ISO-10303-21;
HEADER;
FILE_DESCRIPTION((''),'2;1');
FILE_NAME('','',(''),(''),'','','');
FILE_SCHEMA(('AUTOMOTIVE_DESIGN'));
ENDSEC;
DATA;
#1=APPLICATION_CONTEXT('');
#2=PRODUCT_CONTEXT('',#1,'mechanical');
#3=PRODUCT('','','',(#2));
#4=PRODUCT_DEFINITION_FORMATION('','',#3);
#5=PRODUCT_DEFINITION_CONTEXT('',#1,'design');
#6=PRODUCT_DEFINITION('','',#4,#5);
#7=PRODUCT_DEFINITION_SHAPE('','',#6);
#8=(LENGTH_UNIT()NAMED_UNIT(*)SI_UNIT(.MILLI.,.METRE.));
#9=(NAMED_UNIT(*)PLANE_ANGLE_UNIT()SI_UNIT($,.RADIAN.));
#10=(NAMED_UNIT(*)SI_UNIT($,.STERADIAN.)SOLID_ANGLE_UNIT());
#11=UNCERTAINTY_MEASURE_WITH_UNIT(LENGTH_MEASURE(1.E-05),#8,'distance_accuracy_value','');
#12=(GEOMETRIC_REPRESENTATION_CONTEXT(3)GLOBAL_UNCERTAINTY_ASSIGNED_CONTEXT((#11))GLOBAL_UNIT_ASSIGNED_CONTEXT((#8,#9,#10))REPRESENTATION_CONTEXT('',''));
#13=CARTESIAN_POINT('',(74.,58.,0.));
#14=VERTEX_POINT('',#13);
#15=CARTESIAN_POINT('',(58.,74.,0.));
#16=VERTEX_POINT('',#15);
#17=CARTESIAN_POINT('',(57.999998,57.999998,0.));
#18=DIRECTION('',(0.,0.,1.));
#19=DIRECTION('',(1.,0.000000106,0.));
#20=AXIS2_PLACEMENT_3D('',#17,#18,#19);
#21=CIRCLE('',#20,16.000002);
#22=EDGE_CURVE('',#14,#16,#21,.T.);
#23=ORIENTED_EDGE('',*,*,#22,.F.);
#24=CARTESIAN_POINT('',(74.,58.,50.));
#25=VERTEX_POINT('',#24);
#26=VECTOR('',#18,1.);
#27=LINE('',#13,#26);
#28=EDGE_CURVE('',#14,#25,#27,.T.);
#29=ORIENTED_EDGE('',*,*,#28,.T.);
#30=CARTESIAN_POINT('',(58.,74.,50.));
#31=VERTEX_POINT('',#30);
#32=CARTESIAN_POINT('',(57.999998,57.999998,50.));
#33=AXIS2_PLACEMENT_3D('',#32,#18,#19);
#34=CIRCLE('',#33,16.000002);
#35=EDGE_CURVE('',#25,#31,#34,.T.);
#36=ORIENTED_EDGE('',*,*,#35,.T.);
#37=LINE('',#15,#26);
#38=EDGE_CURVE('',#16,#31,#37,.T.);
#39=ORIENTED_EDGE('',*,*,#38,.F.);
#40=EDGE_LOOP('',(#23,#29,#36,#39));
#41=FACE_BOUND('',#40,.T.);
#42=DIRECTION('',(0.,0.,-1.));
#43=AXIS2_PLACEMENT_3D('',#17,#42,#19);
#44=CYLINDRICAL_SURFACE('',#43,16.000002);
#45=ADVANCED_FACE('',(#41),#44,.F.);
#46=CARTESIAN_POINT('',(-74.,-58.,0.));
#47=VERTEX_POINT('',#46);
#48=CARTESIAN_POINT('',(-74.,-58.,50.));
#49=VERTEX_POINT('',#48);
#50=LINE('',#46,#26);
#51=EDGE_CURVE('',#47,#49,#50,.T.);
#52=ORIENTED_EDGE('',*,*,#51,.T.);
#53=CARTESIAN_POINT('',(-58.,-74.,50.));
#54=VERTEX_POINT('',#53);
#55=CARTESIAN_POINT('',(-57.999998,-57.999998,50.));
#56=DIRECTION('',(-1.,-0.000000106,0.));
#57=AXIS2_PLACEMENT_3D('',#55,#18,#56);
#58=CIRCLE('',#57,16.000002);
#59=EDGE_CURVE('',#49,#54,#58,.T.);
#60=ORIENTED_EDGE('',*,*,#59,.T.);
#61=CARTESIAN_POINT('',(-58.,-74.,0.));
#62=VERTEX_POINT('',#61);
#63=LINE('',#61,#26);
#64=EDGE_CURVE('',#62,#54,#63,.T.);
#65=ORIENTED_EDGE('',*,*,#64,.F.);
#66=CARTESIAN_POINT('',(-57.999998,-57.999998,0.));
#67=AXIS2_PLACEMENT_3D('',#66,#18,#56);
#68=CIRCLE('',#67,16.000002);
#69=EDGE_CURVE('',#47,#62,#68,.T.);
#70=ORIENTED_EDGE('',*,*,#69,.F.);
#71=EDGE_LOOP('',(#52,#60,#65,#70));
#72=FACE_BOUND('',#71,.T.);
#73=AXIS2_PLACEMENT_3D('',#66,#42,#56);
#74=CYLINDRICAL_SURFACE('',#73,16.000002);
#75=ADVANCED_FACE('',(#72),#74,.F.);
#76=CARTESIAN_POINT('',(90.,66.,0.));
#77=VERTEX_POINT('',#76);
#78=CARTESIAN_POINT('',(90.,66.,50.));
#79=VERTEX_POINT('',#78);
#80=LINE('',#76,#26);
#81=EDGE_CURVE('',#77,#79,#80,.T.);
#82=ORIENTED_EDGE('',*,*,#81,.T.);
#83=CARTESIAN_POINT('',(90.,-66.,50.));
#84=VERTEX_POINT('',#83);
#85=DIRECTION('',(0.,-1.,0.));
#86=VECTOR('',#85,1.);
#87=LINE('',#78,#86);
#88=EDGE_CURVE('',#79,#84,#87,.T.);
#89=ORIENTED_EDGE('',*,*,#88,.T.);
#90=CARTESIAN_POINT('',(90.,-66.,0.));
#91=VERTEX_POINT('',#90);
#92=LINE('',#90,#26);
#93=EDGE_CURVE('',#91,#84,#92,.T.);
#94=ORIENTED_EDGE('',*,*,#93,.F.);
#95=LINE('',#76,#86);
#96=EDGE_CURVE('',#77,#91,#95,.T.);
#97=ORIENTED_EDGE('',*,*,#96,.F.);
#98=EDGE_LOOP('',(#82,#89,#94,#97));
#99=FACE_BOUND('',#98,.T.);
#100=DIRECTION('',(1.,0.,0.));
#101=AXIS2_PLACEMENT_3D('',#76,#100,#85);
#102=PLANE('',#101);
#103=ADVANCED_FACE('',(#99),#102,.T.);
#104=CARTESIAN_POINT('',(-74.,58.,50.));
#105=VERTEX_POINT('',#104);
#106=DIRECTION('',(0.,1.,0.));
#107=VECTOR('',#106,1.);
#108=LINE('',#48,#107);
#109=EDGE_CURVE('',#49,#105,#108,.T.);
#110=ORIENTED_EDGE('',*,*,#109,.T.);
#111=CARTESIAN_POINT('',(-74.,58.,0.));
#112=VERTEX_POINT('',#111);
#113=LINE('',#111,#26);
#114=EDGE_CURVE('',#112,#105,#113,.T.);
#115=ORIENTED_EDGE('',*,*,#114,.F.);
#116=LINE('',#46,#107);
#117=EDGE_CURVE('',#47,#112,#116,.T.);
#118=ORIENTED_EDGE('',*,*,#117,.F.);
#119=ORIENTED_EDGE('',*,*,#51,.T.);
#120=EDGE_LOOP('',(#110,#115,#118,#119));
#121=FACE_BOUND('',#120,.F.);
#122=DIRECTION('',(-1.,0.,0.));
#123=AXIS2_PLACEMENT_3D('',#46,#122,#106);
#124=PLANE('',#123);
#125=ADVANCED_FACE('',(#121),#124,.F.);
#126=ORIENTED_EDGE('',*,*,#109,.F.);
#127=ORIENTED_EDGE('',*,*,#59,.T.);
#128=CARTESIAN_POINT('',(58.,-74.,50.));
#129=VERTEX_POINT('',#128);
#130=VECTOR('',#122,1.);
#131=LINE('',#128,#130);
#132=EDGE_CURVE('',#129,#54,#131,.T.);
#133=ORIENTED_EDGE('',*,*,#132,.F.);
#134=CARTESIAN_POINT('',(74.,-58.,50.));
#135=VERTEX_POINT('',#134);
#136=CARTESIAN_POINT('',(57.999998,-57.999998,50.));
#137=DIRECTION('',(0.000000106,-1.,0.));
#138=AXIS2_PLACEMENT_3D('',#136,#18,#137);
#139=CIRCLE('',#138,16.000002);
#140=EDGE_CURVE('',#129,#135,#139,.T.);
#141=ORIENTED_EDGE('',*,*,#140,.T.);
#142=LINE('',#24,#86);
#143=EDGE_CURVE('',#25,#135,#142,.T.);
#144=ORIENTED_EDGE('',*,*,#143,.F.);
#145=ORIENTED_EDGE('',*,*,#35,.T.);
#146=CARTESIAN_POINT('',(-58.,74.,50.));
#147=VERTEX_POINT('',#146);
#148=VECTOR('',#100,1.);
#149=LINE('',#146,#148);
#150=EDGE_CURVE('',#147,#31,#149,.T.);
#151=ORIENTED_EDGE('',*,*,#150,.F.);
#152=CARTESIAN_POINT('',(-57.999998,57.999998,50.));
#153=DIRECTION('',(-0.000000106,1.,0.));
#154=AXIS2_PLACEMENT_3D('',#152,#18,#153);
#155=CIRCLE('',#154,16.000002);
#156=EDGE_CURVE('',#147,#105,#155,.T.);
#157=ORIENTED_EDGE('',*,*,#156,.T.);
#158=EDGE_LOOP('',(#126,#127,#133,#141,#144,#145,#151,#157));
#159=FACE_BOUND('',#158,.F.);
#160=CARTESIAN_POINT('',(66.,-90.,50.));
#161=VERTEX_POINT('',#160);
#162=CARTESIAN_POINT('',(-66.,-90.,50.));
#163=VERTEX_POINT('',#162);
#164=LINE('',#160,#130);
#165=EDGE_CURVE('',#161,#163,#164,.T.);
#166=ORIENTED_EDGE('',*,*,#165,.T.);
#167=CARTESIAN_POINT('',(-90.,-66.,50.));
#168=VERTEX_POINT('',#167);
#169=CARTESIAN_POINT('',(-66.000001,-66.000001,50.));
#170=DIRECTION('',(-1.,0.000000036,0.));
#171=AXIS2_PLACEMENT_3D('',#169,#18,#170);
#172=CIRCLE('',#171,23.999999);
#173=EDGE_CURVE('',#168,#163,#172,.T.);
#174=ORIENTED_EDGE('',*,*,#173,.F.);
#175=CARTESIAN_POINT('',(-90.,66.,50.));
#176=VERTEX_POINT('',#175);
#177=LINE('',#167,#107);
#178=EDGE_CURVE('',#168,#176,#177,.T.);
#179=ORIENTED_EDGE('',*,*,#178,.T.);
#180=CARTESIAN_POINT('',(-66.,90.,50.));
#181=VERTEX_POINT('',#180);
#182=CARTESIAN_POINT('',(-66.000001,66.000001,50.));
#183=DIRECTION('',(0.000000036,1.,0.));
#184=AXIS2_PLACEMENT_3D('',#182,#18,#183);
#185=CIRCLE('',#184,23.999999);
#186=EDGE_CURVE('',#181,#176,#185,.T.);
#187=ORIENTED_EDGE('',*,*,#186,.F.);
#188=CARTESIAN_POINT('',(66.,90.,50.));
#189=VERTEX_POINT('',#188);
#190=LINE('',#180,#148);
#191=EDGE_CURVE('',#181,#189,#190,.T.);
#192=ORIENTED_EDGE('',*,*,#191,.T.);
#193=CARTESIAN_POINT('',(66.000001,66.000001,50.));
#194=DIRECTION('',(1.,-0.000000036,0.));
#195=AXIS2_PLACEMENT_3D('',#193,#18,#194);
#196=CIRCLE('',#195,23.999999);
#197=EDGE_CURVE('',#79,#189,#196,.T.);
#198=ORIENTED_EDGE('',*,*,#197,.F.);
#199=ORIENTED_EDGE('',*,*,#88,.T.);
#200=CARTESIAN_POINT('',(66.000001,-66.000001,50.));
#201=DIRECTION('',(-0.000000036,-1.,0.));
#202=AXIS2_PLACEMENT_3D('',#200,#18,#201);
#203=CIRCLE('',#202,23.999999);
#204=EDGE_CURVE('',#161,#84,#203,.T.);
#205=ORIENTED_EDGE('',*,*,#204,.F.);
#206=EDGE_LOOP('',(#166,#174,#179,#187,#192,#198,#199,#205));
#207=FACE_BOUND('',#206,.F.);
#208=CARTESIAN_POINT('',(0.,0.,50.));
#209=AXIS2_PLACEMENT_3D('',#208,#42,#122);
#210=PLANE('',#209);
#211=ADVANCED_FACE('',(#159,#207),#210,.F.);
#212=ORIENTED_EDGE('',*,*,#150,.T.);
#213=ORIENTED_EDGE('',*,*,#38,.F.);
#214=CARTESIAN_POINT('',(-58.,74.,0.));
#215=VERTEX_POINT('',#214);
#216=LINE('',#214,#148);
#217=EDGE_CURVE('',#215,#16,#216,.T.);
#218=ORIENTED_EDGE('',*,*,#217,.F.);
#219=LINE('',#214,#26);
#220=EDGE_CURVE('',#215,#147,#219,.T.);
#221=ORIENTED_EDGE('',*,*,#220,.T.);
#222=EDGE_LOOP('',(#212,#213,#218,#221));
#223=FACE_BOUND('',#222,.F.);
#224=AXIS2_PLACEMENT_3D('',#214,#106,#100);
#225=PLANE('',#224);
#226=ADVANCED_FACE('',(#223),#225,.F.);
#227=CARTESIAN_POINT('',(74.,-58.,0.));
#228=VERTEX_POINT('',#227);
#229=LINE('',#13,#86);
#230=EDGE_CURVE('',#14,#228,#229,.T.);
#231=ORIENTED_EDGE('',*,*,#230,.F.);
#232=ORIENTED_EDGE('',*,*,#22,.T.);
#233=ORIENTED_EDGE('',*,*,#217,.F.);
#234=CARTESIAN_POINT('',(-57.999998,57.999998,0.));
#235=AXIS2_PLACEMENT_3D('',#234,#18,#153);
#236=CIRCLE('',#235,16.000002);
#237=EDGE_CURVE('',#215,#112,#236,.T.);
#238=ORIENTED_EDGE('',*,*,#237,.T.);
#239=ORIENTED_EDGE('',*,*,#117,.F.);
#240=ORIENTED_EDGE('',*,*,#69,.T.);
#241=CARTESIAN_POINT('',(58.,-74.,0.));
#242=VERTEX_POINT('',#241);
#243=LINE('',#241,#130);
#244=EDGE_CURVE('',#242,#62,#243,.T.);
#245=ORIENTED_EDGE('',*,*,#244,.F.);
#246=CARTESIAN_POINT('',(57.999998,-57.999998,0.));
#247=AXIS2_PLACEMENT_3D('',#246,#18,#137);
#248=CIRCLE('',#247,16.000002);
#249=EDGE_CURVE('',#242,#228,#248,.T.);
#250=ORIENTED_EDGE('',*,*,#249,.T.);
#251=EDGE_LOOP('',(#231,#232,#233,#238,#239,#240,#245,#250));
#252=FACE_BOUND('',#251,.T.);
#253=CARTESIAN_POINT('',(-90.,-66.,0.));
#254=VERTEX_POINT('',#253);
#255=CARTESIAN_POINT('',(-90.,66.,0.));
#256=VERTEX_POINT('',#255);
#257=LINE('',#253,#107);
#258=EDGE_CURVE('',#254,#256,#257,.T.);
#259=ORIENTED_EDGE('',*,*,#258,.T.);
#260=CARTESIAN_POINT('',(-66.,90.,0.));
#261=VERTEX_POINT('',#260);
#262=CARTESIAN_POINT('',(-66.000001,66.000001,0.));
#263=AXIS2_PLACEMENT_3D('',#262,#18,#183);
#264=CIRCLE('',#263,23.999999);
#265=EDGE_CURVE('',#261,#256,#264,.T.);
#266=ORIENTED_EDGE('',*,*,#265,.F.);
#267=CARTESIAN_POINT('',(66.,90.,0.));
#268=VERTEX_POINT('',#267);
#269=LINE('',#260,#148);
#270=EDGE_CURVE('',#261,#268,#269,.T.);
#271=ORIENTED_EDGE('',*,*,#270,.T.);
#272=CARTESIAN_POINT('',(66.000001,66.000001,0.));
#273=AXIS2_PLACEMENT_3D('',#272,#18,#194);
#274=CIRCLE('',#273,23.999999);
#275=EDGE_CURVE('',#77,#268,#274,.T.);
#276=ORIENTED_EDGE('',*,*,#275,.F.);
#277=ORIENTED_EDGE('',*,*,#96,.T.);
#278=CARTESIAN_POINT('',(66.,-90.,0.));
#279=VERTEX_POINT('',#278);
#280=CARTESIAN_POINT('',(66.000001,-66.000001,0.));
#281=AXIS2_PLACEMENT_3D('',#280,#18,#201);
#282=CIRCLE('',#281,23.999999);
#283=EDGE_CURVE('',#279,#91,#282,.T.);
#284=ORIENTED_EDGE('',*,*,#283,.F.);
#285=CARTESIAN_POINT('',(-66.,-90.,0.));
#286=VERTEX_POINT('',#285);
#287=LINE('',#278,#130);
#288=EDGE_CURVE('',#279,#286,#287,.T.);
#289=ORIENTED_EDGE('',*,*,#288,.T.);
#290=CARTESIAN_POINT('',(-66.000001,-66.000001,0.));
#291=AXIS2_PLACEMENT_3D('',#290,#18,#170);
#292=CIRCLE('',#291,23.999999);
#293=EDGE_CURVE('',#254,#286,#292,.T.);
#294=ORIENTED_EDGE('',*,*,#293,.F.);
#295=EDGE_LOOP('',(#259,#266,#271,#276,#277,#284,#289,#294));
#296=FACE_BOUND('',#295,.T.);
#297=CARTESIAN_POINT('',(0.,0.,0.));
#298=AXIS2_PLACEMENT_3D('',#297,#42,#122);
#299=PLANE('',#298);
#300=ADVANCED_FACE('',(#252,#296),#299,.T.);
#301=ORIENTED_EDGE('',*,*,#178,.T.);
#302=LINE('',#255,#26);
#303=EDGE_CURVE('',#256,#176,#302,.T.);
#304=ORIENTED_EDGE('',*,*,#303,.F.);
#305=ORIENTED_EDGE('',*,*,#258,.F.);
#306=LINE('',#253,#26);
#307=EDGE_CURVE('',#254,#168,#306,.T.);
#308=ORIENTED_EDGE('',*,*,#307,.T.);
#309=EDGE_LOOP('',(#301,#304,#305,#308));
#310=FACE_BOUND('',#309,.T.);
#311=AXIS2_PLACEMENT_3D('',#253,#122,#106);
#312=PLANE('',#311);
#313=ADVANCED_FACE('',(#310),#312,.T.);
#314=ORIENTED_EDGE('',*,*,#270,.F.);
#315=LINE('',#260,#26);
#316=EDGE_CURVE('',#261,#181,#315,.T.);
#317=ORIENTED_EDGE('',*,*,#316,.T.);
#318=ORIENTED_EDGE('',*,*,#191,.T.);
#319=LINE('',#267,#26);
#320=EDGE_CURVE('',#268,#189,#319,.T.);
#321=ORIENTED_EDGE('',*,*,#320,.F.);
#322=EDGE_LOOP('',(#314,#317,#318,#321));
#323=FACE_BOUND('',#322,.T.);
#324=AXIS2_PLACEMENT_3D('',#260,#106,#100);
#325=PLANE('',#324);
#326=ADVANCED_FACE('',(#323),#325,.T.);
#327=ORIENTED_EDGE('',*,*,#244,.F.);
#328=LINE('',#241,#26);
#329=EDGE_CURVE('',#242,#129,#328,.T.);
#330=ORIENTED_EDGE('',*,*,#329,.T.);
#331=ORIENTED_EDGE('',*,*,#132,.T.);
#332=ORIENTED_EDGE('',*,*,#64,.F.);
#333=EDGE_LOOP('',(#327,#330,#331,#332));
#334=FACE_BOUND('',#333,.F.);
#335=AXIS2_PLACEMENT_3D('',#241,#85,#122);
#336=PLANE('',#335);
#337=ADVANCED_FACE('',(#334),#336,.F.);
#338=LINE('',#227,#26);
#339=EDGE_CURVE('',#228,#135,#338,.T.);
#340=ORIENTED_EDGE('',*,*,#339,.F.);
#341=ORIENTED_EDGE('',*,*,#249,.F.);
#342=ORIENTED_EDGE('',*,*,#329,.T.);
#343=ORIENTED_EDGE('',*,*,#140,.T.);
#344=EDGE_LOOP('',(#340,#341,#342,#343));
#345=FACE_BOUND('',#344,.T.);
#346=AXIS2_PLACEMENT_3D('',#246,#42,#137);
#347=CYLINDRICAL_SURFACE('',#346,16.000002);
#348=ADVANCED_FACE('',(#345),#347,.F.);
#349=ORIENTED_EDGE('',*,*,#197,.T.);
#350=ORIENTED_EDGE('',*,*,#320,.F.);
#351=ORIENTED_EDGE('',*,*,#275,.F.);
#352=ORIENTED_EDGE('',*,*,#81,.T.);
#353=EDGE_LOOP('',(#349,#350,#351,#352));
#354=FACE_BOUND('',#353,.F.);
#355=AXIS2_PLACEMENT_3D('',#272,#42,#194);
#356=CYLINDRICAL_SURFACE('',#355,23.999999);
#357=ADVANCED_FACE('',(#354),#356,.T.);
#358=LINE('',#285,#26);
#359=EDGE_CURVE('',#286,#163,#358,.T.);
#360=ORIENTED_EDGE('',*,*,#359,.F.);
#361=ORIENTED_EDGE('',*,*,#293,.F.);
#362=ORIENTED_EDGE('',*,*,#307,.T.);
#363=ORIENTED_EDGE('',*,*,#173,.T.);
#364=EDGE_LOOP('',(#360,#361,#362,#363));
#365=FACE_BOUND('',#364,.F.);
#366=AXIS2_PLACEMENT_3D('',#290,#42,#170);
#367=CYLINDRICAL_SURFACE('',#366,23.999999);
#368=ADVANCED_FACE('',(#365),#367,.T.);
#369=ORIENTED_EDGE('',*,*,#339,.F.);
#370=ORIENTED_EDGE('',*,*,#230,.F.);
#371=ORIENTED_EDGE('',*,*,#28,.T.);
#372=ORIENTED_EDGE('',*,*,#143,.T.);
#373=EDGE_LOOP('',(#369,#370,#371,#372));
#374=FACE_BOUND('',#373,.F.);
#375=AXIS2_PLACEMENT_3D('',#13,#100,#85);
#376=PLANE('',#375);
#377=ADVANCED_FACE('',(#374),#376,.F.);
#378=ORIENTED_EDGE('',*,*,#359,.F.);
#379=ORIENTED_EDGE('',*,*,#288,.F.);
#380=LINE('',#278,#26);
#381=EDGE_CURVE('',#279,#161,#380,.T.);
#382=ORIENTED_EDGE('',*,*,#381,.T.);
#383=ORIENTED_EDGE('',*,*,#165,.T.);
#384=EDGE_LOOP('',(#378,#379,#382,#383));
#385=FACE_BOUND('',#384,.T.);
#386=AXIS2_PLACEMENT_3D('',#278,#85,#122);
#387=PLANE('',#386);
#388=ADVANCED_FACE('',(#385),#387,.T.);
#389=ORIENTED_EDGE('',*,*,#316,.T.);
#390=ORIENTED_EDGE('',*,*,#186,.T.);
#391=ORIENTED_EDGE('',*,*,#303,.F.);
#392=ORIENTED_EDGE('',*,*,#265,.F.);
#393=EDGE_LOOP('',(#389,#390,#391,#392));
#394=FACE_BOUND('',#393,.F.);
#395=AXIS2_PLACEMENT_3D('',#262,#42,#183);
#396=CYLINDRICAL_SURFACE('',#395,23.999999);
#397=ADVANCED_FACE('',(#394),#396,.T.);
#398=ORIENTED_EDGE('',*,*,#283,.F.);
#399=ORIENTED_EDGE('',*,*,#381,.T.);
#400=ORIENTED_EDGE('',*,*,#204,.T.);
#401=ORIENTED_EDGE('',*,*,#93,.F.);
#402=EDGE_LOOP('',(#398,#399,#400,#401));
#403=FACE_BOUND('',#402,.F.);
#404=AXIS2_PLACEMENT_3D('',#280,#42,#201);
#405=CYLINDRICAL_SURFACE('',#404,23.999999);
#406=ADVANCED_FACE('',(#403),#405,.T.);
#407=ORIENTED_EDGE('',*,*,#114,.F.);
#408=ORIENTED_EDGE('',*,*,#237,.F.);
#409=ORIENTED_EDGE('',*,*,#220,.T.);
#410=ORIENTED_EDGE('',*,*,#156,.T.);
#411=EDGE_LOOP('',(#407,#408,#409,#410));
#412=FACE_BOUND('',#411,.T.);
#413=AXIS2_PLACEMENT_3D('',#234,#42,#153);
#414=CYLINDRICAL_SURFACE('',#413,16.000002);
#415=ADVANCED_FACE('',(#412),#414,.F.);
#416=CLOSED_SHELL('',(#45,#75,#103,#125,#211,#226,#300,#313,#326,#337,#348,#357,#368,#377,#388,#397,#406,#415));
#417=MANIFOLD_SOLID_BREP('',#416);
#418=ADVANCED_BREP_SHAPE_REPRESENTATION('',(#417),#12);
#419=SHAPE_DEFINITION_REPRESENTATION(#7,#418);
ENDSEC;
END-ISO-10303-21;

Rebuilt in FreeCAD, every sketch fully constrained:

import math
import FreeCAD as App
import Part
import Sketcher
from FreeCAD import Vector

doc = App.newDocument("Part")
body = doc.addObject("PartDesign::Body", "Body")

# Sketch on XY plane
sketch1 = body.newObject("Sketcher::SketchObject", "Sketch")
sketch1.AttachmentSupport = (doc.getObject("XY_Plane"), [""])
sketch1.MapMode = "FlatFace"
sketch1.addGeometry([
    Part.LineSegment(Vector(66, 90, 0), Vector(-66, 90, 0)),  # 0
    Part.ArcOfCircle(Part.Circle(Vector(-66, 66, 0), Vector(0, 0, 1), 24), math.radians(90), math.radians(180)),  # 1
    Part.LineSegment(Vector(-90, 66, 0), Vector(-90, -66, 0)),  # 2
    Part.ArcOfCircle(Part.Circle(Vector(-66, -66, 0), Vector(0, 0, 1), 24), math.radians(180), math.radians(270)),  # 3
    Part.LineSegment(Vector(-66, -90, 0), Vector(66, -90, 0)),  # 4
    Part.ArcOfCircle(Part.Circle(Vector(66, -66, 0), Vector(0, 0, 1), 24), math.radians(-90), math.radians(0)),  # 5
    Part.LineSegment(Vector(90, -66, 0), Vector(90, 66, 0)),  # 6
    Part.ArcOfCircle(Part.Circle(Vector(66, 66, 0), Vector(0, 0, 1), 24), math.radians(0), math.radians(90)),  # 7
    Part.LineSegment(Vector(-58, 74, 0), Vector(58, 74, 0)),  # 8
    Part.ArcOfCircle(Part.Circle(Vector(58, 58, 0), Vector(0, 0, 1), 16), math.radians(0), math.radians(90)),  # 9
    Part.LineSegment(Vector(74, 58, 0), Vector(74, -58, 0)),  # 10
    Part.ArcOfCircle(Part.Circle(Vector(58, -58, 0), Vector(0, 0, 1), 16), math.radians(-90), math.radians(0)),  # 11
    Part.LineSegment(Vector(58, -74, 0), Vector(-58, -74, 0)),  # 12
    Part.ArcOfCircle(Part.Circle(Vector(-58, -58, 0), Vector(0, 0, 1), 16), math.radians(-180), math.radians(-90)),  # 13
    Part.LineSegment(Vector(-74, -58, 0), Vector(-74, 58, 0)),  # 14
    Part.ArcOfCircle(Part.Circle(Vector(-58, 58, 0), Vector(0, 0, 1), 16), math.radians(90), math.radians(180)),  # 15
], False)
sketch1.addConstraint([
    Sketcher.Constraint("Tangent", 0, 2, 1, 1),
    Sketcher.Constraint("Tangent", 1, 2, 2, 1),
    Sketcher.Constraint("Tangent", 2, 2, 3, 1),
    Sketcher.Constraint("Tangent", 3, 2, 4, 1),
    Sketcher.Constraint("Tangent", 4, 2, 5, 1),
    Sketcher.Constraint("Tangent", 5, 2, 6, 1),
    Sketcher.Constraint("Tangent", 6, 2, 7, 1),
    Sketcher.Constraint("Tangent", 7, 2, 0, 1),
    Sketcher.Constraint("Tangent", 8, 2, 9, 2),
    Sketcher.Constraint("Tangent", 9, 1, 10, 1),
    Sketcher.Constraint("Tangent", 10, 2, 11, 2),
    Sketcher.Constraint("Tangent", 11, 1, 12, 1),
    Sketcher.Constraint("Tangent", 12, 2, 13, 2),
    Sketcher.Constraint("Tangent", 13, 1, 14, 1),
    Sketcher.Constraint("Tangent", 14, 2, 15, 2),
    Sketcher.Constraint("Tangent", 15, 1, 8, 1),
    Sketcher.Constraint("Horizontal", 0),
    Sketcher.Constraint("Vertical", 2),
    Sketcher.Constraint("Horizontal", 4),
    Sketcher.Constraint("Vertical", 6),
    Sketcher.Constraint("Horizontal", 8),
    Sketcher.Constraint("Vertical", 10),
    Sketcher.Constraint("Horizontal", 12),
    Sketcher.Constraint("Vertical", 14),
    Sketcher.Constraint("Equal", 1, 3),
    Sketcher.Constraint("Equal", 3, 5),
    Sketcher.Constraint("Equal", 5, 7),
    Sketcher.Constraint("Equal", 9, 11),
    Sketcher.Constraint("Equal", 11, 13),
    Sketcher.Constraint("Equal", 13, 15),
    Sketcher.Constraint("Symmetric", 1, 3, 5, 3, -1, 1),
    Sketcher.Constraint("Symmetric", 9, 3, 13, 3, -1, 1),
    Sketcher.Constraint("Equal", 4, 2),
    Sketcher.Constraint("Equal", 12, 10),
    Sketcher.Constraint("Radius", 1, 23.999999),
    Sketcher.Constraint("Radius", 9, 16.000002),
    Sketcher.Constraint("DistanceX", 0, 2, 0, 1, 132.0),
    Sketcher.Constraint("DistanceX", 8, 1, 8, 2, 116.0),
])
pad1 = body.newObject("PartDesign::Pad", "Pad")
pad1.Profile = sketch1
pad1.Length = 50

doc.recompute()
